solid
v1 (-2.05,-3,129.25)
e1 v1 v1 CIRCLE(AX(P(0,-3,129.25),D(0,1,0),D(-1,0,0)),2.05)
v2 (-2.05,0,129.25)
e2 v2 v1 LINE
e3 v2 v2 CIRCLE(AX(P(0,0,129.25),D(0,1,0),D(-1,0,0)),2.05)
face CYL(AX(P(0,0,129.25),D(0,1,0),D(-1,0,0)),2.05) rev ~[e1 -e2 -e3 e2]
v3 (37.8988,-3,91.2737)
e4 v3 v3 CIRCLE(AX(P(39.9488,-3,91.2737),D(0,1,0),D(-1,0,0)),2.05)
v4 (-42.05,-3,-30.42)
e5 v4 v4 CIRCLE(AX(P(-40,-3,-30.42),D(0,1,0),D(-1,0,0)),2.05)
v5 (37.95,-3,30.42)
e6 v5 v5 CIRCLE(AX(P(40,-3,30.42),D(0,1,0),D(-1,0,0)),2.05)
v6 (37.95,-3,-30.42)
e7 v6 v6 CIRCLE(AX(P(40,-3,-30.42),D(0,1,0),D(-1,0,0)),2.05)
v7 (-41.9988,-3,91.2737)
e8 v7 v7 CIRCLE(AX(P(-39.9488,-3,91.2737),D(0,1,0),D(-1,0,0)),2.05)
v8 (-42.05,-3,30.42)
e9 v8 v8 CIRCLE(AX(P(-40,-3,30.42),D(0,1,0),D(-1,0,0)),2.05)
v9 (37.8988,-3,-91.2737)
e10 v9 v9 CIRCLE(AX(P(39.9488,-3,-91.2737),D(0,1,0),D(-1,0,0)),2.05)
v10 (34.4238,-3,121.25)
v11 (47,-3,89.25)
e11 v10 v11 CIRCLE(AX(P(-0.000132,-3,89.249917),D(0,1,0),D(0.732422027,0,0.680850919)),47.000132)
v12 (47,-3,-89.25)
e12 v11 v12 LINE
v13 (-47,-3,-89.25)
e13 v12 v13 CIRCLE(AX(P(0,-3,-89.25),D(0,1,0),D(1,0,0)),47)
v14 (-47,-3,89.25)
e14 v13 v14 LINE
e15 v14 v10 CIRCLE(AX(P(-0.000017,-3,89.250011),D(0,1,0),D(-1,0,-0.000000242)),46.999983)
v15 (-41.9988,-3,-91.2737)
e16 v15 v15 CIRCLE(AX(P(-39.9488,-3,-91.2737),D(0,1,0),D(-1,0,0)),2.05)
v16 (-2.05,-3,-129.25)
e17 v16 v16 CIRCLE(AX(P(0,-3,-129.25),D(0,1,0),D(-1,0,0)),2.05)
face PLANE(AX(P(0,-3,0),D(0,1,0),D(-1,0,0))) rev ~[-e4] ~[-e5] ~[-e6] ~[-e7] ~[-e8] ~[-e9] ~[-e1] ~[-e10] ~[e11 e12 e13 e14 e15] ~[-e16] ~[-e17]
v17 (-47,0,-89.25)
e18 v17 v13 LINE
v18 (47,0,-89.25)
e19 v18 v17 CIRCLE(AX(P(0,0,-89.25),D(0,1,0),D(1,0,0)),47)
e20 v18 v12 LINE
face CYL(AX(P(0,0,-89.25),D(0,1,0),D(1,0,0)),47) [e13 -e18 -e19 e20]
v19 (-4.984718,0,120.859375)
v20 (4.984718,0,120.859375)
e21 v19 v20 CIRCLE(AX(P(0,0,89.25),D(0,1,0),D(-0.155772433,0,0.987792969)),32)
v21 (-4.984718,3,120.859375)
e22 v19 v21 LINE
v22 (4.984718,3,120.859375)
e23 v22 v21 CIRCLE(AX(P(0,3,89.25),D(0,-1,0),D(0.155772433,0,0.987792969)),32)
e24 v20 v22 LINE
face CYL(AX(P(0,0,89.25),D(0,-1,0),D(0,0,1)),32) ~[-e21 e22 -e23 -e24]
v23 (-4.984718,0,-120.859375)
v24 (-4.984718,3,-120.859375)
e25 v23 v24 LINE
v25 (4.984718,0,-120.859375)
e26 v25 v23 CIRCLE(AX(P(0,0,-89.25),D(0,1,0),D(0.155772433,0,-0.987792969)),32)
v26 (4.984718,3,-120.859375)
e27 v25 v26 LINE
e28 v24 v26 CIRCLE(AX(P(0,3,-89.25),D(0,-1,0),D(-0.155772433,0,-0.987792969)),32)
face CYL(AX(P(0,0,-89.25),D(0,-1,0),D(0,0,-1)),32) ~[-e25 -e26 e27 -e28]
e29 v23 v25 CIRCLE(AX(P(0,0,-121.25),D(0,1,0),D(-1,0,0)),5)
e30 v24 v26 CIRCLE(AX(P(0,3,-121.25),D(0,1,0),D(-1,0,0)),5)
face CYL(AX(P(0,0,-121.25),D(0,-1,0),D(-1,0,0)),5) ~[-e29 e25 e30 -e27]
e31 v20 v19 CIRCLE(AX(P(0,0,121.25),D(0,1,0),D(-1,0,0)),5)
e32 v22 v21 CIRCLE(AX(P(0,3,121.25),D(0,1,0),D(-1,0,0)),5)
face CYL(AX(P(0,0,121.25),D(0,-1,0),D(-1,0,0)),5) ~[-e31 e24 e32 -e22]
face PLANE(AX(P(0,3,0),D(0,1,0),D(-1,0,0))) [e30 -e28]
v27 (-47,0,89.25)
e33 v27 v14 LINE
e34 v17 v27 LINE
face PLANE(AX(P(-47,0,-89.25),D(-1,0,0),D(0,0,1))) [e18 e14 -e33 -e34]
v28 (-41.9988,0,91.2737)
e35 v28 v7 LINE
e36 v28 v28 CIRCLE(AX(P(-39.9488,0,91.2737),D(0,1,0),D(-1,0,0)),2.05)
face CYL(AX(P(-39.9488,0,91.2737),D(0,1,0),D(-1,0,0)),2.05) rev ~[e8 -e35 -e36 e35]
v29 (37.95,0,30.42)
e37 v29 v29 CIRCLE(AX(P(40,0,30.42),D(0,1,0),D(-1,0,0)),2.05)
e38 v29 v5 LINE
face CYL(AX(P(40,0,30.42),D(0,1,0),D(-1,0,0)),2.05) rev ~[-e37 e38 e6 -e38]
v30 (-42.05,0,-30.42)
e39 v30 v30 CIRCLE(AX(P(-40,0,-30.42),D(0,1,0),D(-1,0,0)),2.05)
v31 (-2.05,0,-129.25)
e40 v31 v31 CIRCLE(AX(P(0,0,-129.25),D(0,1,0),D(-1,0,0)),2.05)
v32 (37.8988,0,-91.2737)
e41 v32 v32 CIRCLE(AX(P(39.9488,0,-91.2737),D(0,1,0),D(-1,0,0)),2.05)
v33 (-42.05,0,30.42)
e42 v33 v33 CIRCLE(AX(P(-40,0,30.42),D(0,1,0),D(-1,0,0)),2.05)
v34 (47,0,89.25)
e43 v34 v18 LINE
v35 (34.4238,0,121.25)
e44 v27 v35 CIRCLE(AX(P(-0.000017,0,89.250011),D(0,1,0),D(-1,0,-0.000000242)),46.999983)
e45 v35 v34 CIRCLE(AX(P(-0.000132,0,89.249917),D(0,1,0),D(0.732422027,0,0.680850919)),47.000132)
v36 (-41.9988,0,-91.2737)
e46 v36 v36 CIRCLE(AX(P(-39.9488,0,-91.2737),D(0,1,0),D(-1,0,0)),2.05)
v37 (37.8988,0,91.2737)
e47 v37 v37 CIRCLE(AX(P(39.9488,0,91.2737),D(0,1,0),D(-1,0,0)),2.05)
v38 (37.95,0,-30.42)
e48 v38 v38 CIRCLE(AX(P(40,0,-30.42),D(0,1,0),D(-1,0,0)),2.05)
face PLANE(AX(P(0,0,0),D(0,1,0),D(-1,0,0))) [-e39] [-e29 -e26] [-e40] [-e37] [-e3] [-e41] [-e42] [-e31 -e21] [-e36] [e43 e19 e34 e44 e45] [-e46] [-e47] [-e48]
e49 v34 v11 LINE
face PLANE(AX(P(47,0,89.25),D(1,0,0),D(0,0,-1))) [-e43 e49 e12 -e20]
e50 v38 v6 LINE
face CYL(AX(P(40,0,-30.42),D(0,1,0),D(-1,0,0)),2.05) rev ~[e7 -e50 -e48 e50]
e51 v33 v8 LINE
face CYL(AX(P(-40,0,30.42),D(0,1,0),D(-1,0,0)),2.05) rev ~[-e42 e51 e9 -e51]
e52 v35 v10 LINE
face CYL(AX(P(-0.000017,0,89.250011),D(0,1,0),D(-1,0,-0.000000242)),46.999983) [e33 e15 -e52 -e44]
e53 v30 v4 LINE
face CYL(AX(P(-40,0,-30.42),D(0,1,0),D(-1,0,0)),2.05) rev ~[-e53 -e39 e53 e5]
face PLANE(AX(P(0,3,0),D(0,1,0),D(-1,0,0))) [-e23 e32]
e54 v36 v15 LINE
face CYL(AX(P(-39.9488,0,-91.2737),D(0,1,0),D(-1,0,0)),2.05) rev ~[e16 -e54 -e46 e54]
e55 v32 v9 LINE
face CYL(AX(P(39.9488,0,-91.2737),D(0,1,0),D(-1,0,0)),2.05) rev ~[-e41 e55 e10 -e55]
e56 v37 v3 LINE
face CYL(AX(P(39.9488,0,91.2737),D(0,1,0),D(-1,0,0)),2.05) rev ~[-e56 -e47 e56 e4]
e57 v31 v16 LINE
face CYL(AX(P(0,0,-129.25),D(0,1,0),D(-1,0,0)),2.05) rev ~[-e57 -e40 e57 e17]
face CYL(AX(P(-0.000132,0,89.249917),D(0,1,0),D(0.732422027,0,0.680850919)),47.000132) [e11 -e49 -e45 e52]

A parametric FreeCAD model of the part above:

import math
import FreeCAD as App
import Part
import Sketcher

V = App.Vector
Q = App.Units.Quantity

doc = App.newDocument("Part")
body = doc.addObject("PartDesign::Body", "Body")

sketch1 = doc.addObject("Sketcher::SketchObject", "Sketch")
body.addObject(sketch1)
sketch1.AttachmentSupport = (doc.XZ_Plane, [""])
sketch1.MapMode = "FlatFace"
sketch1.addGeometry(Part.ArcOfCircle(Part.Circle(V(0, -89.2, 0), V(0, 0, 1), 47), math.radians(180), math.radians(360)), False)
sketch1.addGeometry(Part.LineSegment(V(-47, -89.2, 0), V(-47, 89.2, 0)), False)
sketch1.addGeometry(Part.ArcOfCircle(Part.Circle(V(0, 89.2, 0), V(0, 0, 1), 47), math.radians(43), math.radians(180)), False)
sketch1.addGeometry(Part.ArcOfCircle(Part.Circle(V(0, 89.2, 0), V(0, 0, 1), 47), math.radians(0), math.radians(43)), False)
sketch1.addGeometry(Part.LineSegment(V(47, 89.2, 0), V(47, -89.2, 0)), False)
sketch1.addGeometry(Part.Circle(V(39.9, -91.3, 0), V(0, 0, 1), 2), False)
sketch1.addGeometry(Part.Circle(V(0, -129.2, 0), V(0, 0, 1), 2), False)
sketch1.addGeometry(Part.Circle(V(40, -30.4, 0), V(0, 0, 1), 2), False)
sketch1.addGeometry(Part.Circle(V(-39.9, -91.3, 0), V(0, 0, 1), 2), False)
sketch1.addGeometry(Part.Circle(V(-40, -30.4, 0), V(0, 0, 1), 2), False)
sketch1.addGeometry(Part.Circle(V(40, 30.4, 0), V(0, 0, 1), 2), False)
sketch1.addGeometry(Part.Circle(V(-40, 30.4, 0), V(0, 0, 1), 2), False)
sketch1.addGeometry(Part.Circle(V(-39.9, 91.3, 0), V(0, 0, 1), 2), False)
sketch1.addGeometry(Part.Circle(V(39.9, 91.3, 0), V(0, 0, 1), 2), False)
sketch1.addGeometry(Part.Circle(V(0, 129.2, 0), V(0, 0, 1), 2), False)
sketch1.addConstraint(Sketcher.Constraint("Tangent", 0, 1, 1, 1))
sketch1.addConstraint(Sketcher.Constraint("Tangent", 1, 2, 2, 2))
sketch1.addConstraint(Sketcher.Constraint("Tangent", 2, 1, 3, 2))
sketch1.addConstraint(Sketcher.Constraint("Tangent", 3, 1, 4, 1))
sketch1.addConstraint(Sketcher.Constraint("Tangent", 4, 2, 0, 2))
sketch1.addConstraint(Sketcher.Constraint("Vertical", 1))
sketch1.addConstraint(Sketcher.Constraint("Vertical", 4))
sketch1.addConstraint(Sketcher.Constraint("Equal", 0, 2))
sketch1.addConstraint(Sketcher.Constraint("Equal", 5, 6))
sketch1.addConstraint(Sketcher.Constraint("Equal", 6, 7))
sketch1.addConstraint(Sketcher.Constraint("Equal", 7, 8))
sketch1.addConstraint(Sketcher.Constraint("Equal", 8, 9))
sketch1.addConstraint(Sketcher.Constraint("Equal", 9, 10))
sketch1.addConstraint(Sketcher.Constraint("Equal", 10, 11))
sketch1.addConstraint(Sketcher.Constraint("Equal", 11, 12))
sketch1.addConstraint(Sketcher.Constraint("Equal", 12, 13))
sketch1.addConstraint(Sketcher.Constraint("Equal", 13, 14))
sketch1.addConstraint(Sketcher.Constraint("Symmetric", 0, 3, 2, 3, -1, 1))
sketch1.addConstraint(Sketcher.Constraint("Symmetric", 9, 3, 10, 3, -1, 1))
sketch1.addConstraint(Sketcher.Constraint("Symmetric", 7, 3, 11, 3, -1, 1))
sketch1.addConstraint(Sketcher.Constraint("Symmetric", 5, 3, 12, 3, -1, 1))
sketch1.addConstraint(Sketcher.Constraint("Symmetric", 8, 3, 13, 3, -1, 1))
sketch1.addConstraint(Sketcher.Constraint("Symmetric", 6, 3, 14, 3, -1, 1))
sketch1.addConstraint(Sketcher.Constraint("Symmetric", 5, 3, 8, 3, -2))
sketch1.addConstraint(Sketcher.Constraint("Symmetric", 7, 3, 9, 3, -2))
sketch1.addConstraint(Sketcher.Constraint("PointOnObject", 6, 3, -2))
sketch1.addConstraint(Sketcher.Constraint("Diameter", 5, Q("4.1 mm")))
sketch1.addConstraint(Sketcher.Constraint("Radius", 0, Q("47 mm")))
sketch1.addConstraint(Sketcher.Constraint("DistanceY", 2, 1, 14, 3, Q("8 mm")))
sketch1.addConstraint(Sketcher.Constraint("DistanceY", 2, 3, 2, 1, Q("32 mm")))
sketch1.addConstraint(Sketcher.Constraint("DistanceY", 7, 3, -1, 1, Q("30.42 mm")))
sketch1.addConstraint(Sketcher.Constraint("DistanceY", 1, 1, 1, 2, Q("178.5 mm")))
sketch1.addConstraint(Sketcher.Constraint("DistanceX", -1, 1, 7, 3, Q("40 mm")))
sketch1.addConstraint(Sketcher.Constraint("DistanceX", 2, 1, 13, 3, Q("5.525 mm")))
sketch1.addConstraint(Sketcher.Constraint("DistanceY", 5, 3, -1, 1, Q("91.2737 mm")))
pad1 = doc.addObject("PartDesign::Pad", "Pad")
body.addObject(pad1)
pad1.Profile = sketch1
pad1.Length = 3

sketch2 = doc.addObject("Sketcher::SketchObject", "Sketch001")
body.addObject(sketch2)
sketch2.AttachmentSupport = (doc.XZ_Plane, [""])
sketch2.MapMode = "FlatFace"
sketch2.addGeometry(Part.ArcOfCircle(Part.Circle(V(0, 121, 0), V(0, 0, 1), 5), math.radians(-176), math.radians(-4)), False)
sketch2.addGeometry(Part.ArcOfCircle(Part.Circle(V(0, 89, 0), V(0, 0, 1), 32), math.radians(81.04), math.radians(98.96)), False)
sketch2.addGeometry(Part.ArcOfCircle(Part.Circle(V(0, -89, 0), V(0, 0, 1), 32), math.radians(-98.96), math.radians(-81.04)), False)
sketch2.addGeometry(Part.ArcOfCircle(Part.Circle(V(0, -121, 0), V(0, 0, 1), 5), math.radians(4), math.radians(176)), False)
sketch2.addConstraint(Sketcher.Constraint("Coincident", 0, 1, 1, 2))
sketch2.addConstraint(Sketcher.Constraint("Coincident", 1, 1, 0, 2))
sketch2.addConstraint(Sketcher.Constraint("Coincident", 2, 1, 3, 2))
sketch2.addConstraint(Sketcher.Constraint("Coincident", 3, 1, 2, 2))
sketch2.addConstraint(Sketcher.Constraint("Equal", 1, 2))
sketch2.addConstraint(Sketcher.Constraint("Equal", 0, 3))
sketch2.addConstraint(Sketcher.Constraint("Symmetric", 1, 3, 2, 3, -1, 1))
sketch2.addConstraint(Sketcher.Constraint("Symmetric", 0, 3, 3, 3, -1, 1))
sketch2.addConstraint(Sketcher.Constraint("Symmetric", 0, 1, 1, 1, -2))
sketch2.addConstraint(Sketcher.Constraint("Radius", 0, Q("5 mm")))
sketch2.addConstraint(Sketcher.Constraint("Radius", 1, Q("32 mm")))
sketch2.addConstraint(Sketcher.Constraint("DistanceY", 1, 3, 0, 3, Q("32 mm")))
sketch2.addConstraint(Sketcher.Constraint("DistanceY", 3, 3, 0, 3, Q("242.5 mm")))
pad2 = doc.addObject("PartDesign::Pad", "Pad001")
body.addObject(pad2)
pad2.Profile = sketch2
pad2.Length = 3
pad2.Reversed = True

doc.recompute()
